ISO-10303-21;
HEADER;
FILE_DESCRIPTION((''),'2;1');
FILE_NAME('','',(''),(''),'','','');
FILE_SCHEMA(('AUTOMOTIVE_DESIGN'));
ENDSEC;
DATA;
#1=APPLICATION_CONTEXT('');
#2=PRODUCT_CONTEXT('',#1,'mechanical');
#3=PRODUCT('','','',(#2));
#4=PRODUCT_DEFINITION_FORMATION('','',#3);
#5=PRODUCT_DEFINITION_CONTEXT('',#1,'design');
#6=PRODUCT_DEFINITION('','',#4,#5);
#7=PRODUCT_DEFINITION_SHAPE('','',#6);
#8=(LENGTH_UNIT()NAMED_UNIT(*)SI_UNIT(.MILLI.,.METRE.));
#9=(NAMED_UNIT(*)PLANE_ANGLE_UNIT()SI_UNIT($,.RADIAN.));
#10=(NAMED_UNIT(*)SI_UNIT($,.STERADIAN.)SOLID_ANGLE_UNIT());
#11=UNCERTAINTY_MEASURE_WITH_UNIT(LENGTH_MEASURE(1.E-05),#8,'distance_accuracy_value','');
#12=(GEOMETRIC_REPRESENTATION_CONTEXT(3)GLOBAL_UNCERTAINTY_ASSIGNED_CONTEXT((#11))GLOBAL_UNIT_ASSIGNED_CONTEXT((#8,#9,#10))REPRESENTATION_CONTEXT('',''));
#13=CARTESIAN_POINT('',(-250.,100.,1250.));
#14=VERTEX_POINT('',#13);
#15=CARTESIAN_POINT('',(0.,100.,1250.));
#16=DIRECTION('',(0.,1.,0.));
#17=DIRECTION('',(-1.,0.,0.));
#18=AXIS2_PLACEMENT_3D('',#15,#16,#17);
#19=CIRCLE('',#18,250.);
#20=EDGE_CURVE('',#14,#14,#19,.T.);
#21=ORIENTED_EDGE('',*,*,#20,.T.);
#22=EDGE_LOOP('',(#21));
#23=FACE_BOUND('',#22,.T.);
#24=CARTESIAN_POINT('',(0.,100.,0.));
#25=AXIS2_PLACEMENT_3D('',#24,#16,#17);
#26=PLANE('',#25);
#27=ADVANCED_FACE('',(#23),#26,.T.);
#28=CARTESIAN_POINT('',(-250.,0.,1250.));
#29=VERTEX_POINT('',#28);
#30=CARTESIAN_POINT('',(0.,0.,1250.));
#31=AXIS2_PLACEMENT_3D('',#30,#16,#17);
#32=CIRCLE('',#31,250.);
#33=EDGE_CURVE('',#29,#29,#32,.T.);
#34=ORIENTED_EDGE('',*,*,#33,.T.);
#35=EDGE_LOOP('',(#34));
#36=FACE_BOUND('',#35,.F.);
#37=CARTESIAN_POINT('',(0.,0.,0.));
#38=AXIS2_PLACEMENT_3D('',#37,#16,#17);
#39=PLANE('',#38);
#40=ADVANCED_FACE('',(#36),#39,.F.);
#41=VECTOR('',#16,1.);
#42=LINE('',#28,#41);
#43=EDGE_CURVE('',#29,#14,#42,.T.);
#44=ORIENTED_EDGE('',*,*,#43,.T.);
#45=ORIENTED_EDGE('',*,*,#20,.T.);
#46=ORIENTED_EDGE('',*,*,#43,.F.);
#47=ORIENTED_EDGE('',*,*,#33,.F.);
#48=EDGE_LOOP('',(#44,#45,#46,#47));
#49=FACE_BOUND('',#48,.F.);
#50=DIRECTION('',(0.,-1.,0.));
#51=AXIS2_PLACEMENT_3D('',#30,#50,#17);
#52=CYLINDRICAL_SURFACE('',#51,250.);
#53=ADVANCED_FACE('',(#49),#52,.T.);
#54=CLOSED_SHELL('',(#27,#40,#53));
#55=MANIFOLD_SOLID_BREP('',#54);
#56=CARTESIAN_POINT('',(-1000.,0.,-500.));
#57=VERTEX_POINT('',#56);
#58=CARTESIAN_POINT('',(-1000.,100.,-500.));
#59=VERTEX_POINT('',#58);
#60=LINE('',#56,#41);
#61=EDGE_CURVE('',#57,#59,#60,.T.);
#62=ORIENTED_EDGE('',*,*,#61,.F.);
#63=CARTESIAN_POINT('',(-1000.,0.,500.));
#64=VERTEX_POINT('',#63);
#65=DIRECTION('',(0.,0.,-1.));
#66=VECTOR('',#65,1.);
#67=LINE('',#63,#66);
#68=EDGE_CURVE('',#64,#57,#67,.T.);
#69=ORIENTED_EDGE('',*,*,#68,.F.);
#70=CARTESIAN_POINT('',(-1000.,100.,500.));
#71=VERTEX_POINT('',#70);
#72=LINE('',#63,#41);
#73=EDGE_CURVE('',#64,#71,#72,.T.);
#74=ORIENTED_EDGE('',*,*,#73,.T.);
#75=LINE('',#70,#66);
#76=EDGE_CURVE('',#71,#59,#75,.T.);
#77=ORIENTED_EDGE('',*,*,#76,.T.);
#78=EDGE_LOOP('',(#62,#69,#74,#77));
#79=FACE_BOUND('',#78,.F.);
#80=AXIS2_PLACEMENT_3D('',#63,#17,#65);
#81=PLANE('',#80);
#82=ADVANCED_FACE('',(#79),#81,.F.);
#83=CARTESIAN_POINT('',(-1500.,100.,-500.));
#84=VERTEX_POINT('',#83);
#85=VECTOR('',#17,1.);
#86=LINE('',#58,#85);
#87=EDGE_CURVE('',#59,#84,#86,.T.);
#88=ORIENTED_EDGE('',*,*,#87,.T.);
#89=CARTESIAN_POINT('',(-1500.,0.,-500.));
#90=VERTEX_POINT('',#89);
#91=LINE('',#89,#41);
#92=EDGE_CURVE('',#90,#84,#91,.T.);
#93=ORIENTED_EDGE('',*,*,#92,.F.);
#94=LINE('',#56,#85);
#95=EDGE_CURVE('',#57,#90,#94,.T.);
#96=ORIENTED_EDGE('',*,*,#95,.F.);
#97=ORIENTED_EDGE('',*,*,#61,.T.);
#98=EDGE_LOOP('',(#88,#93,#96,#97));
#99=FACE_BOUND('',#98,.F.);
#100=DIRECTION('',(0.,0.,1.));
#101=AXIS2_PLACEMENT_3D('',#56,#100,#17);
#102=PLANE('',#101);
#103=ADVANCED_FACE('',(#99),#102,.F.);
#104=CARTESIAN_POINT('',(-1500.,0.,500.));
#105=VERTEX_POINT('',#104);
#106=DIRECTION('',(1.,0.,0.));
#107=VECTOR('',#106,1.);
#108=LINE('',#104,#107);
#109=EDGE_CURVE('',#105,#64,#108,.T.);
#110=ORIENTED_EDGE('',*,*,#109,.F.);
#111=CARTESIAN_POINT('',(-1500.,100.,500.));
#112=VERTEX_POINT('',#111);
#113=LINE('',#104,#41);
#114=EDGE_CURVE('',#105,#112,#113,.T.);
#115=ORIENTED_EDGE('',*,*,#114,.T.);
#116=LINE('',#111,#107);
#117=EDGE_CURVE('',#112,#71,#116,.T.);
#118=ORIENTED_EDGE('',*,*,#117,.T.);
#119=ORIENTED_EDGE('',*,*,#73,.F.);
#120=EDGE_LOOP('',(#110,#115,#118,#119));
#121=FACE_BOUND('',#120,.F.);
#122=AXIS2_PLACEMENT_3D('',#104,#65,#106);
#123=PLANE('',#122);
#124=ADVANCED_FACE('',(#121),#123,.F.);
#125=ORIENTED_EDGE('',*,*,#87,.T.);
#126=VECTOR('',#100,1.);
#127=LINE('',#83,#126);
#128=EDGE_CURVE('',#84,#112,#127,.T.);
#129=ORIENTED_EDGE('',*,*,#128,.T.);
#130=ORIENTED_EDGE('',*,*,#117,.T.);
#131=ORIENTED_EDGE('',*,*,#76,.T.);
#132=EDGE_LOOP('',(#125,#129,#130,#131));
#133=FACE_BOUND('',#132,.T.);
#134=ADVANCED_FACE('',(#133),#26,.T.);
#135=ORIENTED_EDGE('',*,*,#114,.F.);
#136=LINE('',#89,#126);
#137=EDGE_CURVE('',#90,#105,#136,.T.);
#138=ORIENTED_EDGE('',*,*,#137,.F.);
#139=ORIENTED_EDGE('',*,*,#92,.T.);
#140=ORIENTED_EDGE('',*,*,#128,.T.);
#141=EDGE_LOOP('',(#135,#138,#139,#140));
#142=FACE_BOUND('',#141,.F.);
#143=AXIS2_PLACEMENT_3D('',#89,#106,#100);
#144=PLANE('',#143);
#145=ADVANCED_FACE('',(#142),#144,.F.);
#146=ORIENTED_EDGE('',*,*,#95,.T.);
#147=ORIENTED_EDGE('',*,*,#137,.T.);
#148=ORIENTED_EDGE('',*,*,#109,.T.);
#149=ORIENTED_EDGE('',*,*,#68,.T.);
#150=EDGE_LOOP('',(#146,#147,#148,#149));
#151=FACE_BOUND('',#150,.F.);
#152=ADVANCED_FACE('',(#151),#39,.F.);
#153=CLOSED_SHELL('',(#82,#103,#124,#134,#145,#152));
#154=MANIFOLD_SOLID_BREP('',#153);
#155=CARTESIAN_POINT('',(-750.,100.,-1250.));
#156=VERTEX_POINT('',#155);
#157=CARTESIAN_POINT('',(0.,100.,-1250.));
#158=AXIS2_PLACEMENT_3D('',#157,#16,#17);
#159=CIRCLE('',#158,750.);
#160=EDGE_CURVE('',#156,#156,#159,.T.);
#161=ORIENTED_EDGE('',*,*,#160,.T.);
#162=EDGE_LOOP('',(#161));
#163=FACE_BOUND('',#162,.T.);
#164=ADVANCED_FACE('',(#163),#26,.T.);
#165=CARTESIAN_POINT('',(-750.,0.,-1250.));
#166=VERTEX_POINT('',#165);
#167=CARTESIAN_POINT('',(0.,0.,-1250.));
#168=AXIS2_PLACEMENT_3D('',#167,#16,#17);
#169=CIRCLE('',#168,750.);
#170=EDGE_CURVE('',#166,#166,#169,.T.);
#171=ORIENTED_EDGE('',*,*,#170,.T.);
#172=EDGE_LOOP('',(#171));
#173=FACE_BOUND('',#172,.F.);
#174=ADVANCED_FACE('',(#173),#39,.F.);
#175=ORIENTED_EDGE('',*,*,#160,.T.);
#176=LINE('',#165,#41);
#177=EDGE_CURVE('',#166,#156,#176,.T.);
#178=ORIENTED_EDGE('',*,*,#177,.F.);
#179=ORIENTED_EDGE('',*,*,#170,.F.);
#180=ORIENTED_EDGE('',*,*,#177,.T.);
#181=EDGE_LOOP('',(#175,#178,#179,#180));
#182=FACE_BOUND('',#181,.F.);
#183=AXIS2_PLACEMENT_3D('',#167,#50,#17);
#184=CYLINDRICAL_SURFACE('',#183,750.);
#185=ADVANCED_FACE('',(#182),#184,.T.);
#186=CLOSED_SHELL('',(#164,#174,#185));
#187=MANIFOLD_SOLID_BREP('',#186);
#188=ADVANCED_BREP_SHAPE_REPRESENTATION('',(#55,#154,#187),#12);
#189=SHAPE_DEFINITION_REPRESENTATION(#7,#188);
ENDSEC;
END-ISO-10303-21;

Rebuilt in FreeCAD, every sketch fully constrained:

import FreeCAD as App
import Part
import Sketcher

doc = App.newDocument("Part")
body = doc.addObject("PartDesign::Body", "Body")
body.AllowCompound = True

# Sketch on XZ plane
sketch1 = doc.addObject("Sketcher::SketchObject", "Sketch")
body.addObject(sketch1)
sketch1.AttachmentSupport = (doc.XZ_Plane, [""])
sketch1.MapMode = "FlatFace"
sketch1.addGeometry(Part.Circle(App.Vector(0, 1250, 0), App.Vector(0, 0, 1), 250), False)
sketch1.addGeometry(Part.Circle(App.Vector(0, -1250, 0), App.Vector(0, 0, 1), 750), False)
sketch1.addGeometry(Part.LineSegment(App.Vector(-1000, -500, 0), App.Vector(-1500, -500, 0)), False)
sketch1.addGeometry(Part.LineSegment(App.Vector(-1500, -500, 0), App.Vector(-1500, 500, 0)), False)
sketch1.addGeometry(Part.LineSegment(App.Vector(-1500, 500, 0), App.Vector(-1000, 500, 0)), False)
sketch1.addGeometry(Part.LineSegment(App.Vector(-1000, 500, 0), App.Vector(-1000, -500, 0)), False)
sketch1.addConstraint(Sketcher.Constraint("Coincident", 2, 2, 3, 1))
sketch1.addConstraint(Sketcher.Constraint("Coincident", 3, 2, 4, 1))
sketch1.addConstraint(Sketcher.Constraint("Coincident", 4, 2, 5, 1))
sketch1.addConstraint(Sketcher.Constraint("Coincident", 5, 2, 2, 1))
sketch1.addConstraint(Sketcher.Constraint("Horizontal", 2))
sketch1.addConstraint(Sketcher.Constraint("Vertical", 3))
sketch1.addConstraint(Sketcher.Constraint("Horizontal", 4))
sketch1.addConstraint(Sketcher.Constraint("Vertical", 5))
sketch1.addConstraint(Sketcher.Constraint("Symmetric", 0, 3, 1, 3, -1, 1))
sketch1.addConstraint(Sketcher.Constraint("PointOnObject", 0, 3, -2))
sketch1.addConstraint(Sketcher.Constraint("Diameter", 0, 500.0))
sketch1.addConstraint(Sketcher.Constraint("Diameter", 1, 1500.0))
sketch1.addConstraint(Sketcher.Constraint("DistanceX", 2, 2, 2, 1, 500.0))
sketch1.addConstraint(Sketcher.Constraint("DistanceY", 3, 1, 3, 2, 1000.0))
sketch1.addConstraint(Sketcher.Constraint("DistanceX", 2, 2, -1, 1, 1500.0))
sketch1.addConstraint(Sketcher.Constraint("DistanceY", 2, 2, -1, 1, 500.0))
sketch1.addConstraint(Sketcher.Constraint("DistanceY", -1, 1, 0, 3, 1250.0))
pad1 = doc.addObject("PartDesign::Pad", "Pad")
body.addObject(pad1)
pad1.Profile = sketch1
pad1.Length = 100
pad1.Reversed = True

doc.recompute()
